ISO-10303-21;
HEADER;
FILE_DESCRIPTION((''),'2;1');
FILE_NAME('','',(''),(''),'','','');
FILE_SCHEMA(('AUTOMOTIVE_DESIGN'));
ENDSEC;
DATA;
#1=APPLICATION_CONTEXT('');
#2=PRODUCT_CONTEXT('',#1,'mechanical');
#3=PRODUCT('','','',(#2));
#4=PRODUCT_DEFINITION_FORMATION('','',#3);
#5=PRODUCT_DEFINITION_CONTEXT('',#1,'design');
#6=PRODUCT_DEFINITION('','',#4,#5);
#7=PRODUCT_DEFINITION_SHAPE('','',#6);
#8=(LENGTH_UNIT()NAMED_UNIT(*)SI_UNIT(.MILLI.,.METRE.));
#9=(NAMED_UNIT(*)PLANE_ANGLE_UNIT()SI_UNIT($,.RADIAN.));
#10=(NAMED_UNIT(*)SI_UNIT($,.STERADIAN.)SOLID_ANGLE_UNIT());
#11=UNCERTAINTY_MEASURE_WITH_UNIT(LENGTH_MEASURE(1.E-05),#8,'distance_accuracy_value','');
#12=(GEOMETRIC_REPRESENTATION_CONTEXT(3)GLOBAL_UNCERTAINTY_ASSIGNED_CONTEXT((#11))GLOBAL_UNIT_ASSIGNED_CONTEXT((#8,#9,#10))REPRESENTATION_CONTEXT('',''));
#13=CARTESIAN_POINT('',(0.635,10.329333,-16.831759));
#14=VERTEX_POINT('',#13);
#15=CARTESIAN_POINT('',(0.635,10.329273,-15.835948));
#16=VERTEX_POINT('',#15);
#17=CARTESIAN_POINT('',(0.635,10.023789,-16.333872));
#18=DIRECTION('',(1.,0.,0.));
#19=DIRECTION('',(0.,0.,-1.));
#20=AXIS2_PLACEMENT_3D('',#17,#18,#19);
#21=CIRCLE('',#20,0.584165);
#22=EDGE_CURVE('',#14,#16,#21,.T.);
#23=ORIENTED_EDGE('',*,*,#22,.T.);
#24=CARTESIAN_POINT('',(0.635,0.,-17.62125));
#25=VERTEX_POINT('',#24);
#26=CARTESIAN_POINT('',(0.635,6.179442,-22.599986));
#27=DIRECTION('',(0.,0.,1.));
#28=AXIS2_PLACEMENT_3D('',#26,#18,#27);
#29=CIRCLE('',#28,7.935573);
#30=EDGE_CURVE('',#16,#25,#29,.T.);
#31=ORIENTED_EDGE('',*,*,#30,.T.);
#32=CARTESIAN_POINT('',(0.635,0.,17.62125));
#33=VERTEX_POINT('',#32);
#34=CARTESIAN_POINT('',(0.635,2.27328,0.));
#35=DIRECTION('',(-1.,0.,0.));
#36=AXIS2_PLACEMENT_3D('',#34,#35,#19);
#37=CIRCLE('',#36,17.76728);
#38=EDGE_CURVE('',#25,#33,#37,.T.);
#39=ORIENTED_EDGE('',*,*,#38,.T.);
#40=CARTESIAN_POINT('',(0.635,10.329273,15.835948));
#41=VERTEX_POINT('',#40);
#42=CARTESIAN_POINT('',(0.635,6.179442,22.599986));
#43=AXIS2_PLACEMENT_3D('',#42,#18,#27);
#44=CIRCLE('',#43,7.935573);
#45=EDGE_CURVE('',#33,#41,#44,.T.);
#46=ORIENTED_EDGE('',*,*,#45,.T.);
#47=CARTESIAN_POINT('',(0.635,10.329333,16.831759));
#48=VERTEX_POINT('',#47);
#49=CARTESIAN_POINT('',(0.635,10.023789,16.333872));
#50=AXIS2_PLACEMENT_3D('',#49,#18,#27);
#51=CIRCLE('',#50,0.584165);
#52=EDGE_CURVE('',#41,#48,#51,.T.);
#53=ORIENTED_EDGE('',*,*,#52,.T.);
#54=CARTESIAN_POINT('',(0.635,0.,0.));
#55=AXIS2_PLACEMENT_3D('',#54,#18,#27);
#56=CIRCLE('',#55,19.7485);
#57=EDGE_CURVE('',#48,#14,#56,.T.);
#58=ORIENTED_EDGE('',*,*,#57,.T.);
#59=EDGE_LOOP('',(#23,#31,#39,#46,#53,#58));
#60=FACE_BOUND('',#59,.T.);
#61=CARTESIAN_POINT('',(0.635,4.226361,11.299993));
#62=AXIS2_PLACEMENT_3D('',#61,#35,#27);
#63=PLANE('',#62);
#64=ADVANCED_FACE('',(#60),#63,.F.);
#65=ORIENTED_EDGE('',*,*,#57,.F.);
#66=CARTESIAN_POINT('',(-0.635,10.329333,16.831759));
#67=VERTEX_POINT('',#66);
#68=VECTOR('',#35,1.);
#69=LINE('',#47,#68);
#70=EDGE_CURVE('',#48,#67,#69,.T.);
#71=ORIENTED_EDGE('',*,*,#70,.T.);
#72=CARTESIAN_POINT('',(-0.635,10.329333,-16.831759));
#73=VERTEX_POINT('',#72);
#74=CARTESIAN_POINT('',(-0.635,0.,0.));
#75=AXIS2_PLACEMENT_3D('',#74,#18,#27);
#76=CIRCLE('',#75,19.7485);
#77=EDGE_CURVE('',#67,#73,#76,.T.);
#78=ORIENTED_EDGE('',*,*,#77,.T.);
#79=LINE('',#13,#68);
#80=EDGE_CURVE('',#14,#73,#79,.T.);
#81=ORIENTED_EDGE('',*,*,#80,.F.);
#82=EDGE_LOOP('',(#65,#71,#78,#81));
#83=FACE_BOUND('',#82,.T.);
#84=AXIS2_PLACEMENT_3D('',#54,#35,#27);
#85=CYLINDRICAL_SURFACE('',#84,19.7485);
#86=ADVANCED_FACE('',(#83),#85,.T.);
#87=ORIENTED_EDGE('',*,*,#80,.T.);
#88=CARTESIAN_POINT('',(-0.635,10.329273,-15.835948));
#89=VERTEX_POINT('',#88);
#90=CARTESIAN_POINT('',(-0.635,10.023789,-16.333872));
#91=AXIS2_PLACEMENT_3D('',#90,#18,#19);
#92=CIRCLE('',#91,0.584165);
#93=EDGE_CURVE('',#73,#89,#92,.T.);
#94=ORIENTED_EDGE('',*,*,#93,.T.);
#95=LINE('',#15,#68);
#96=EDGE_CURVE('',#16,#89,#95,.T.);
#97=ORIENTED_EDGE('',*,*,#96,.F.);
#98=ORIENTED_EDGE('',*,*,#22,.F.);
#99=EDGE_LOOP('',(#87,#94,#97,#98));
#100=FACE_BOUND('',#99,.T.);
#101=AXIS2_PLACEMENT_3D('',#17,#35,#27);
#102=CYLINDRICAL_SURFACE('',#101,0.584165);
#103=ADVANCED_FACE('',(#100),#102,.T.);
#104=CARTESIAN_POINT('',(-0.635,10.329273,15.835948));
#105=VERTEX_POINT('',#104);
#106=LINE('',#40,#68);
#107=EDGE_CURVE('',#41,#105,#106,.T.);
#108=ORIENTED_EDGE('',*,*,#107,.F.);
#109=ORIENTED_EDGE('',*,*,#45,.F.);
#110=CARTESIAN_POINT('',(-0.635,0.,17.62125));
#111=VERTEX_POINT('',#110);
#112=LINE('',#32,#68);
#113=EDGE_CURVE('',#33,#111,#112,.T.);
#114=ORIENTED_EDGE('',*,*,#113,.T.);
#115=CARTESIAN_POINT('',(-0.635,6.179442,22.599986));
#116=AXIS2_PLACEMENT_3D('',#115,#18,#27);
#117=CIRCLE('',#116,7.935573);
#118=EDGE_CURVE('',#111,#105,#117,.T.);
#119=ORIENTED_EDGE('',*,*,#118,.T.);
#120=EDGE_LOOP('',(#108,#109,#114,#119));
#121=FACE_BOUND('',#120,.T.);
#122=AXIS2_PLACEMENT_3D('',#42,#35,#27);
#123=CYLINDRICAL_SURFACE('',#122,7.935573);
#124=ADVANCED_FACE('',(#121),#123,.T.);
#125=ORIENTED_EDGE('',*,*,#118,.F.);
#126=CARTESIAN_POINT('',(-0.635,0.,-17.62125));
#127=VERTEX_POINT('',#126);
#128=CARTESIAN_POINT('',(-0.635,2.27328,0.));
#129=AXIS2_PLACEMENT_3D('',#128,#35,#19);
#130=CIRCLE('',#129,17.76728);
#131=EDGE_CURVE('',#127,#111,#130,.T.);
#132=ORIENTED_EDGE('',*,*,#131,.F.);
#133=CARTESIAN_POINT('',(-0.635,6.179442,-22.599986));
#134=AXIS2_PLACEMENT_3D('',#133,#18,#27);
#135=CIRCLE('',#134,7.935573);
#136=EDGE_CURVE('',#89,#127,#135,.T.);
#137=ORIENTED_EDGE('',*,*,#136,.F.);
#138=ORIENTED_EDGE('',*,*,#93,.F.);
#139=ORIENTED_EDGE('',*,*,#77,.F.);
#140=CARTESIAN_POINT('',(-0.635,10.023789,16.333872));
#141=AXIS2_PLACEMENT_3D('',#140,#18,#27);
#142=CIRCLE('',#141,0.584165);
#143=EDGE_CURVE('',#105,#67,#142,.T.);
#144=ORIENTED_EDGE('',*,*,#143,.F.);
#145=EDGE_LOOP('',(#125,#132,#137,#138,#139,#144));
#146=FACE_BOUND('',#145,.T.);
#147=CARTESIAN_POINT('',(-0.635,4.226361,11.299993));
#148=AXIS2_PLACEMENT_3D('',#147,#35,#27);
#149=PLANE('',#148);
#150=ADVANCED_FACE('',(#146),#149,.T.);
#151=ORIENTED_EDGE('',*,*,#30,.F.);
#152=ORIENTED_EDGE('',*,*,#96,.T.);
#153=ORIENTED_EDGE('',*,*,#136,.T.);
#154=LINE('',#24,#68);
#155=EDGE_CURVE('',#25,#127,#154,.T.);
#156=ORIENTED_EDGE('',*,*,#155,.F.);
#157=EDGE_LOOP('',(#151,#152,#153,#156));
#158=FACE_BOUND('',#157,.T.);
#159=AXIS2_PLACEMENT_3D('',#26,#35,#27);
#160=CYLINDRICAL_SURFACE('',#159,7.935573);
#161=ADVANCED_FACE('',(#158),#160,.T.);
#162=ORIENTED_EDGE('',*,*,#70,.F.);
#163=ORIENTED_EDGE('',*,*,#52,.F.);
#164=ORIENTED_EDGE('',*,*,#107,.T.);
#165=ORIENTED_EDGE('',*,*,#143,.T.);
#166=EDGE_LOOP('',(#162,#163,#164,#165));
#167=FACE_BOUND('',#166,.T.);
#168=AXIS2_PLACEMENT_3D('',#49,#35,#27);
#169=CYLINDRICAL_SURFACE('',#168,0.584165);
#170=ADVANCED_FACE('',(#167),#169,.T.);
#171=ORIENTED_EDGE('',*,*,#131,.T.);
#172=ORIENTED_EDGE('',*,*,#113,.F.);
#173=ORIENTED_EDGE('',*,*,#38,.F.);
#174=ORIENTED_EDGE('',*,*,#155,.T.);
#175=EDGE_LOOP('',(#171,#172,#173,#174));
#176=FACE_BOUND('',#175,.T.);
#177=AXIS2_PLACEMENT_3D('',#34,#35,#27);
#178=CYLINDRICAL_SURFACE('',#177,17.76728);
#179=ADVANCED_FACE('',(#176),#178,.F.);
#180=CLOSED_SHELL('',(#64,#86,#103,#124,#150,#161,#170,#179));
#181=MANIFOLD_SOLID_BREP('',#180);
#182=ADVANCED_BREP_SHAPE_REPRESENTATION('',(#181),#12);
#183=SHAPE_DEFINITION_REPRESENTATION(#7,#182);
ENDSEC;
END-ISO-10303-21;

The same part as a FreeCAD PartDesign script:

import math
import FreeCAD as App
import Part
import Sketcher
from FreeCAD import Vector
Q = App.Units.Quantity

doc = App.newDocument("Part")
params = doc.addObject("Spreadsheet::Sheet", "Params")
for row, (alias, value) in enumerate([
    ("pad1_length", "0.05 in"),
], start=1):
    params.set(f"A{row}", alias)
    params.set(f"B{row}", "=" + value)
    params.setAlias(f"B{row}", alias)

body = doc.addObject("PartDesign::Body", "Body")

# Sketch on YZ plane
sketch1 = body.newObject("Sketcher::SketchObject", "Sketch")
sketch1.AttachmentSupport = (doc.getObject("YZ_Plane"), [""])
sketch1.MapMode = "FlatFace"
sketch1.addGeometry([
    Part.ArcOfCircle(Part.Circle(Vector(2.27328, 0, 0), Vector(0, 0, 1), 17.76728), math.radians(97.351007), math.radians(262.648993)),  # 0
    Part.ArcOfCircle(Part.Circle(Vector(6.179442, 22.599986, 0), Vector(0, 0, 1), 7.935573), math.radians(-141.141832), math.radians(-58.470308)),  # 1
    Part.ArcOfCircle(Part.Circle(Vector(10.023789, 16.333872, 0), Vector(0, 0, 1), 0.584165), math.radians(-58.470308), math.radians(58.463344)),  # 2
    Part.ArcOfCircle(Part.Circle(Vector(0, 0, 0), Vector(0, 0, 1), 19.7485), math.radians(58.463344), math.radians(301.536656)),  # 3
    Part.ArcOfCircle(Part.Circle(Vector(10.023789, -16.333872, 0), Vector(0, 0, 1), 0.584165), math.radians(-58.463344), math.radians(58.470308)),  # 4
    Part.ArcOfCircle(Part.Circle(Vector(6.179442, -22.599986, 0), Vector(0, 0, 1), 7.935573), math.radians(58.470308), math.radians(141.141832)),  # 5
], False)
sketch1.addConstraint([
    Sketcher.Constraint("Coincident", 0, 1, 1, 1),
    Sketcher.Constraint("Tangent", 1, 2, 2, 1),
    Sketcher.Constraint("Tangent", 2, 2, 3, 1),
    Sketcher.Constraint("Tangent", 3, 2, 4, 1),
    Sketcher.Constraint("Tangent", 4, 2, 5, 1),
    Sketcher.Constraint("Coincident", 5, 2, 0, 2),
    Sketcher.Constraint("Coincident", 3, 3, -1, 1),
    Sketcher.Constraint("Equal", 2, 4),
    Sketcher.Constraint("Equal", 1, 5),
    Sketcher.Constraint("Symmetric", 0, 1, 5, 2, -1, 1),
    Sketcher.Constraint("Symmetric", 1, 3, 5, 3, -1),
    Sketcher.Constraint("Radius", 3, Q("0.7775 in")),
    Sketcher.Constraint("Radius", 0, Q("17.76728 mm")),
    Sketcher.Constraint("Radius", 1, Q("7.935573 mm")),
    Sketcher.Constraint("Radius", 2, Q("0.584165 mm")),
    Sketcher.Constraint("DistanceX", -1, 1, 0, 3, Q("2.27328 mm")),
    Sketcher.Constraint("DistanceX", -1, 1, 1, 3, Q("6.179442 mm")),
])
pad1 = body.newObject("PartDesign::Pad", "Pad")
pad1.Profile = sketch1
pad1.setExpression("Length", "Params.pad1_length")
pad1.Midplane = True

doc.recompute()
